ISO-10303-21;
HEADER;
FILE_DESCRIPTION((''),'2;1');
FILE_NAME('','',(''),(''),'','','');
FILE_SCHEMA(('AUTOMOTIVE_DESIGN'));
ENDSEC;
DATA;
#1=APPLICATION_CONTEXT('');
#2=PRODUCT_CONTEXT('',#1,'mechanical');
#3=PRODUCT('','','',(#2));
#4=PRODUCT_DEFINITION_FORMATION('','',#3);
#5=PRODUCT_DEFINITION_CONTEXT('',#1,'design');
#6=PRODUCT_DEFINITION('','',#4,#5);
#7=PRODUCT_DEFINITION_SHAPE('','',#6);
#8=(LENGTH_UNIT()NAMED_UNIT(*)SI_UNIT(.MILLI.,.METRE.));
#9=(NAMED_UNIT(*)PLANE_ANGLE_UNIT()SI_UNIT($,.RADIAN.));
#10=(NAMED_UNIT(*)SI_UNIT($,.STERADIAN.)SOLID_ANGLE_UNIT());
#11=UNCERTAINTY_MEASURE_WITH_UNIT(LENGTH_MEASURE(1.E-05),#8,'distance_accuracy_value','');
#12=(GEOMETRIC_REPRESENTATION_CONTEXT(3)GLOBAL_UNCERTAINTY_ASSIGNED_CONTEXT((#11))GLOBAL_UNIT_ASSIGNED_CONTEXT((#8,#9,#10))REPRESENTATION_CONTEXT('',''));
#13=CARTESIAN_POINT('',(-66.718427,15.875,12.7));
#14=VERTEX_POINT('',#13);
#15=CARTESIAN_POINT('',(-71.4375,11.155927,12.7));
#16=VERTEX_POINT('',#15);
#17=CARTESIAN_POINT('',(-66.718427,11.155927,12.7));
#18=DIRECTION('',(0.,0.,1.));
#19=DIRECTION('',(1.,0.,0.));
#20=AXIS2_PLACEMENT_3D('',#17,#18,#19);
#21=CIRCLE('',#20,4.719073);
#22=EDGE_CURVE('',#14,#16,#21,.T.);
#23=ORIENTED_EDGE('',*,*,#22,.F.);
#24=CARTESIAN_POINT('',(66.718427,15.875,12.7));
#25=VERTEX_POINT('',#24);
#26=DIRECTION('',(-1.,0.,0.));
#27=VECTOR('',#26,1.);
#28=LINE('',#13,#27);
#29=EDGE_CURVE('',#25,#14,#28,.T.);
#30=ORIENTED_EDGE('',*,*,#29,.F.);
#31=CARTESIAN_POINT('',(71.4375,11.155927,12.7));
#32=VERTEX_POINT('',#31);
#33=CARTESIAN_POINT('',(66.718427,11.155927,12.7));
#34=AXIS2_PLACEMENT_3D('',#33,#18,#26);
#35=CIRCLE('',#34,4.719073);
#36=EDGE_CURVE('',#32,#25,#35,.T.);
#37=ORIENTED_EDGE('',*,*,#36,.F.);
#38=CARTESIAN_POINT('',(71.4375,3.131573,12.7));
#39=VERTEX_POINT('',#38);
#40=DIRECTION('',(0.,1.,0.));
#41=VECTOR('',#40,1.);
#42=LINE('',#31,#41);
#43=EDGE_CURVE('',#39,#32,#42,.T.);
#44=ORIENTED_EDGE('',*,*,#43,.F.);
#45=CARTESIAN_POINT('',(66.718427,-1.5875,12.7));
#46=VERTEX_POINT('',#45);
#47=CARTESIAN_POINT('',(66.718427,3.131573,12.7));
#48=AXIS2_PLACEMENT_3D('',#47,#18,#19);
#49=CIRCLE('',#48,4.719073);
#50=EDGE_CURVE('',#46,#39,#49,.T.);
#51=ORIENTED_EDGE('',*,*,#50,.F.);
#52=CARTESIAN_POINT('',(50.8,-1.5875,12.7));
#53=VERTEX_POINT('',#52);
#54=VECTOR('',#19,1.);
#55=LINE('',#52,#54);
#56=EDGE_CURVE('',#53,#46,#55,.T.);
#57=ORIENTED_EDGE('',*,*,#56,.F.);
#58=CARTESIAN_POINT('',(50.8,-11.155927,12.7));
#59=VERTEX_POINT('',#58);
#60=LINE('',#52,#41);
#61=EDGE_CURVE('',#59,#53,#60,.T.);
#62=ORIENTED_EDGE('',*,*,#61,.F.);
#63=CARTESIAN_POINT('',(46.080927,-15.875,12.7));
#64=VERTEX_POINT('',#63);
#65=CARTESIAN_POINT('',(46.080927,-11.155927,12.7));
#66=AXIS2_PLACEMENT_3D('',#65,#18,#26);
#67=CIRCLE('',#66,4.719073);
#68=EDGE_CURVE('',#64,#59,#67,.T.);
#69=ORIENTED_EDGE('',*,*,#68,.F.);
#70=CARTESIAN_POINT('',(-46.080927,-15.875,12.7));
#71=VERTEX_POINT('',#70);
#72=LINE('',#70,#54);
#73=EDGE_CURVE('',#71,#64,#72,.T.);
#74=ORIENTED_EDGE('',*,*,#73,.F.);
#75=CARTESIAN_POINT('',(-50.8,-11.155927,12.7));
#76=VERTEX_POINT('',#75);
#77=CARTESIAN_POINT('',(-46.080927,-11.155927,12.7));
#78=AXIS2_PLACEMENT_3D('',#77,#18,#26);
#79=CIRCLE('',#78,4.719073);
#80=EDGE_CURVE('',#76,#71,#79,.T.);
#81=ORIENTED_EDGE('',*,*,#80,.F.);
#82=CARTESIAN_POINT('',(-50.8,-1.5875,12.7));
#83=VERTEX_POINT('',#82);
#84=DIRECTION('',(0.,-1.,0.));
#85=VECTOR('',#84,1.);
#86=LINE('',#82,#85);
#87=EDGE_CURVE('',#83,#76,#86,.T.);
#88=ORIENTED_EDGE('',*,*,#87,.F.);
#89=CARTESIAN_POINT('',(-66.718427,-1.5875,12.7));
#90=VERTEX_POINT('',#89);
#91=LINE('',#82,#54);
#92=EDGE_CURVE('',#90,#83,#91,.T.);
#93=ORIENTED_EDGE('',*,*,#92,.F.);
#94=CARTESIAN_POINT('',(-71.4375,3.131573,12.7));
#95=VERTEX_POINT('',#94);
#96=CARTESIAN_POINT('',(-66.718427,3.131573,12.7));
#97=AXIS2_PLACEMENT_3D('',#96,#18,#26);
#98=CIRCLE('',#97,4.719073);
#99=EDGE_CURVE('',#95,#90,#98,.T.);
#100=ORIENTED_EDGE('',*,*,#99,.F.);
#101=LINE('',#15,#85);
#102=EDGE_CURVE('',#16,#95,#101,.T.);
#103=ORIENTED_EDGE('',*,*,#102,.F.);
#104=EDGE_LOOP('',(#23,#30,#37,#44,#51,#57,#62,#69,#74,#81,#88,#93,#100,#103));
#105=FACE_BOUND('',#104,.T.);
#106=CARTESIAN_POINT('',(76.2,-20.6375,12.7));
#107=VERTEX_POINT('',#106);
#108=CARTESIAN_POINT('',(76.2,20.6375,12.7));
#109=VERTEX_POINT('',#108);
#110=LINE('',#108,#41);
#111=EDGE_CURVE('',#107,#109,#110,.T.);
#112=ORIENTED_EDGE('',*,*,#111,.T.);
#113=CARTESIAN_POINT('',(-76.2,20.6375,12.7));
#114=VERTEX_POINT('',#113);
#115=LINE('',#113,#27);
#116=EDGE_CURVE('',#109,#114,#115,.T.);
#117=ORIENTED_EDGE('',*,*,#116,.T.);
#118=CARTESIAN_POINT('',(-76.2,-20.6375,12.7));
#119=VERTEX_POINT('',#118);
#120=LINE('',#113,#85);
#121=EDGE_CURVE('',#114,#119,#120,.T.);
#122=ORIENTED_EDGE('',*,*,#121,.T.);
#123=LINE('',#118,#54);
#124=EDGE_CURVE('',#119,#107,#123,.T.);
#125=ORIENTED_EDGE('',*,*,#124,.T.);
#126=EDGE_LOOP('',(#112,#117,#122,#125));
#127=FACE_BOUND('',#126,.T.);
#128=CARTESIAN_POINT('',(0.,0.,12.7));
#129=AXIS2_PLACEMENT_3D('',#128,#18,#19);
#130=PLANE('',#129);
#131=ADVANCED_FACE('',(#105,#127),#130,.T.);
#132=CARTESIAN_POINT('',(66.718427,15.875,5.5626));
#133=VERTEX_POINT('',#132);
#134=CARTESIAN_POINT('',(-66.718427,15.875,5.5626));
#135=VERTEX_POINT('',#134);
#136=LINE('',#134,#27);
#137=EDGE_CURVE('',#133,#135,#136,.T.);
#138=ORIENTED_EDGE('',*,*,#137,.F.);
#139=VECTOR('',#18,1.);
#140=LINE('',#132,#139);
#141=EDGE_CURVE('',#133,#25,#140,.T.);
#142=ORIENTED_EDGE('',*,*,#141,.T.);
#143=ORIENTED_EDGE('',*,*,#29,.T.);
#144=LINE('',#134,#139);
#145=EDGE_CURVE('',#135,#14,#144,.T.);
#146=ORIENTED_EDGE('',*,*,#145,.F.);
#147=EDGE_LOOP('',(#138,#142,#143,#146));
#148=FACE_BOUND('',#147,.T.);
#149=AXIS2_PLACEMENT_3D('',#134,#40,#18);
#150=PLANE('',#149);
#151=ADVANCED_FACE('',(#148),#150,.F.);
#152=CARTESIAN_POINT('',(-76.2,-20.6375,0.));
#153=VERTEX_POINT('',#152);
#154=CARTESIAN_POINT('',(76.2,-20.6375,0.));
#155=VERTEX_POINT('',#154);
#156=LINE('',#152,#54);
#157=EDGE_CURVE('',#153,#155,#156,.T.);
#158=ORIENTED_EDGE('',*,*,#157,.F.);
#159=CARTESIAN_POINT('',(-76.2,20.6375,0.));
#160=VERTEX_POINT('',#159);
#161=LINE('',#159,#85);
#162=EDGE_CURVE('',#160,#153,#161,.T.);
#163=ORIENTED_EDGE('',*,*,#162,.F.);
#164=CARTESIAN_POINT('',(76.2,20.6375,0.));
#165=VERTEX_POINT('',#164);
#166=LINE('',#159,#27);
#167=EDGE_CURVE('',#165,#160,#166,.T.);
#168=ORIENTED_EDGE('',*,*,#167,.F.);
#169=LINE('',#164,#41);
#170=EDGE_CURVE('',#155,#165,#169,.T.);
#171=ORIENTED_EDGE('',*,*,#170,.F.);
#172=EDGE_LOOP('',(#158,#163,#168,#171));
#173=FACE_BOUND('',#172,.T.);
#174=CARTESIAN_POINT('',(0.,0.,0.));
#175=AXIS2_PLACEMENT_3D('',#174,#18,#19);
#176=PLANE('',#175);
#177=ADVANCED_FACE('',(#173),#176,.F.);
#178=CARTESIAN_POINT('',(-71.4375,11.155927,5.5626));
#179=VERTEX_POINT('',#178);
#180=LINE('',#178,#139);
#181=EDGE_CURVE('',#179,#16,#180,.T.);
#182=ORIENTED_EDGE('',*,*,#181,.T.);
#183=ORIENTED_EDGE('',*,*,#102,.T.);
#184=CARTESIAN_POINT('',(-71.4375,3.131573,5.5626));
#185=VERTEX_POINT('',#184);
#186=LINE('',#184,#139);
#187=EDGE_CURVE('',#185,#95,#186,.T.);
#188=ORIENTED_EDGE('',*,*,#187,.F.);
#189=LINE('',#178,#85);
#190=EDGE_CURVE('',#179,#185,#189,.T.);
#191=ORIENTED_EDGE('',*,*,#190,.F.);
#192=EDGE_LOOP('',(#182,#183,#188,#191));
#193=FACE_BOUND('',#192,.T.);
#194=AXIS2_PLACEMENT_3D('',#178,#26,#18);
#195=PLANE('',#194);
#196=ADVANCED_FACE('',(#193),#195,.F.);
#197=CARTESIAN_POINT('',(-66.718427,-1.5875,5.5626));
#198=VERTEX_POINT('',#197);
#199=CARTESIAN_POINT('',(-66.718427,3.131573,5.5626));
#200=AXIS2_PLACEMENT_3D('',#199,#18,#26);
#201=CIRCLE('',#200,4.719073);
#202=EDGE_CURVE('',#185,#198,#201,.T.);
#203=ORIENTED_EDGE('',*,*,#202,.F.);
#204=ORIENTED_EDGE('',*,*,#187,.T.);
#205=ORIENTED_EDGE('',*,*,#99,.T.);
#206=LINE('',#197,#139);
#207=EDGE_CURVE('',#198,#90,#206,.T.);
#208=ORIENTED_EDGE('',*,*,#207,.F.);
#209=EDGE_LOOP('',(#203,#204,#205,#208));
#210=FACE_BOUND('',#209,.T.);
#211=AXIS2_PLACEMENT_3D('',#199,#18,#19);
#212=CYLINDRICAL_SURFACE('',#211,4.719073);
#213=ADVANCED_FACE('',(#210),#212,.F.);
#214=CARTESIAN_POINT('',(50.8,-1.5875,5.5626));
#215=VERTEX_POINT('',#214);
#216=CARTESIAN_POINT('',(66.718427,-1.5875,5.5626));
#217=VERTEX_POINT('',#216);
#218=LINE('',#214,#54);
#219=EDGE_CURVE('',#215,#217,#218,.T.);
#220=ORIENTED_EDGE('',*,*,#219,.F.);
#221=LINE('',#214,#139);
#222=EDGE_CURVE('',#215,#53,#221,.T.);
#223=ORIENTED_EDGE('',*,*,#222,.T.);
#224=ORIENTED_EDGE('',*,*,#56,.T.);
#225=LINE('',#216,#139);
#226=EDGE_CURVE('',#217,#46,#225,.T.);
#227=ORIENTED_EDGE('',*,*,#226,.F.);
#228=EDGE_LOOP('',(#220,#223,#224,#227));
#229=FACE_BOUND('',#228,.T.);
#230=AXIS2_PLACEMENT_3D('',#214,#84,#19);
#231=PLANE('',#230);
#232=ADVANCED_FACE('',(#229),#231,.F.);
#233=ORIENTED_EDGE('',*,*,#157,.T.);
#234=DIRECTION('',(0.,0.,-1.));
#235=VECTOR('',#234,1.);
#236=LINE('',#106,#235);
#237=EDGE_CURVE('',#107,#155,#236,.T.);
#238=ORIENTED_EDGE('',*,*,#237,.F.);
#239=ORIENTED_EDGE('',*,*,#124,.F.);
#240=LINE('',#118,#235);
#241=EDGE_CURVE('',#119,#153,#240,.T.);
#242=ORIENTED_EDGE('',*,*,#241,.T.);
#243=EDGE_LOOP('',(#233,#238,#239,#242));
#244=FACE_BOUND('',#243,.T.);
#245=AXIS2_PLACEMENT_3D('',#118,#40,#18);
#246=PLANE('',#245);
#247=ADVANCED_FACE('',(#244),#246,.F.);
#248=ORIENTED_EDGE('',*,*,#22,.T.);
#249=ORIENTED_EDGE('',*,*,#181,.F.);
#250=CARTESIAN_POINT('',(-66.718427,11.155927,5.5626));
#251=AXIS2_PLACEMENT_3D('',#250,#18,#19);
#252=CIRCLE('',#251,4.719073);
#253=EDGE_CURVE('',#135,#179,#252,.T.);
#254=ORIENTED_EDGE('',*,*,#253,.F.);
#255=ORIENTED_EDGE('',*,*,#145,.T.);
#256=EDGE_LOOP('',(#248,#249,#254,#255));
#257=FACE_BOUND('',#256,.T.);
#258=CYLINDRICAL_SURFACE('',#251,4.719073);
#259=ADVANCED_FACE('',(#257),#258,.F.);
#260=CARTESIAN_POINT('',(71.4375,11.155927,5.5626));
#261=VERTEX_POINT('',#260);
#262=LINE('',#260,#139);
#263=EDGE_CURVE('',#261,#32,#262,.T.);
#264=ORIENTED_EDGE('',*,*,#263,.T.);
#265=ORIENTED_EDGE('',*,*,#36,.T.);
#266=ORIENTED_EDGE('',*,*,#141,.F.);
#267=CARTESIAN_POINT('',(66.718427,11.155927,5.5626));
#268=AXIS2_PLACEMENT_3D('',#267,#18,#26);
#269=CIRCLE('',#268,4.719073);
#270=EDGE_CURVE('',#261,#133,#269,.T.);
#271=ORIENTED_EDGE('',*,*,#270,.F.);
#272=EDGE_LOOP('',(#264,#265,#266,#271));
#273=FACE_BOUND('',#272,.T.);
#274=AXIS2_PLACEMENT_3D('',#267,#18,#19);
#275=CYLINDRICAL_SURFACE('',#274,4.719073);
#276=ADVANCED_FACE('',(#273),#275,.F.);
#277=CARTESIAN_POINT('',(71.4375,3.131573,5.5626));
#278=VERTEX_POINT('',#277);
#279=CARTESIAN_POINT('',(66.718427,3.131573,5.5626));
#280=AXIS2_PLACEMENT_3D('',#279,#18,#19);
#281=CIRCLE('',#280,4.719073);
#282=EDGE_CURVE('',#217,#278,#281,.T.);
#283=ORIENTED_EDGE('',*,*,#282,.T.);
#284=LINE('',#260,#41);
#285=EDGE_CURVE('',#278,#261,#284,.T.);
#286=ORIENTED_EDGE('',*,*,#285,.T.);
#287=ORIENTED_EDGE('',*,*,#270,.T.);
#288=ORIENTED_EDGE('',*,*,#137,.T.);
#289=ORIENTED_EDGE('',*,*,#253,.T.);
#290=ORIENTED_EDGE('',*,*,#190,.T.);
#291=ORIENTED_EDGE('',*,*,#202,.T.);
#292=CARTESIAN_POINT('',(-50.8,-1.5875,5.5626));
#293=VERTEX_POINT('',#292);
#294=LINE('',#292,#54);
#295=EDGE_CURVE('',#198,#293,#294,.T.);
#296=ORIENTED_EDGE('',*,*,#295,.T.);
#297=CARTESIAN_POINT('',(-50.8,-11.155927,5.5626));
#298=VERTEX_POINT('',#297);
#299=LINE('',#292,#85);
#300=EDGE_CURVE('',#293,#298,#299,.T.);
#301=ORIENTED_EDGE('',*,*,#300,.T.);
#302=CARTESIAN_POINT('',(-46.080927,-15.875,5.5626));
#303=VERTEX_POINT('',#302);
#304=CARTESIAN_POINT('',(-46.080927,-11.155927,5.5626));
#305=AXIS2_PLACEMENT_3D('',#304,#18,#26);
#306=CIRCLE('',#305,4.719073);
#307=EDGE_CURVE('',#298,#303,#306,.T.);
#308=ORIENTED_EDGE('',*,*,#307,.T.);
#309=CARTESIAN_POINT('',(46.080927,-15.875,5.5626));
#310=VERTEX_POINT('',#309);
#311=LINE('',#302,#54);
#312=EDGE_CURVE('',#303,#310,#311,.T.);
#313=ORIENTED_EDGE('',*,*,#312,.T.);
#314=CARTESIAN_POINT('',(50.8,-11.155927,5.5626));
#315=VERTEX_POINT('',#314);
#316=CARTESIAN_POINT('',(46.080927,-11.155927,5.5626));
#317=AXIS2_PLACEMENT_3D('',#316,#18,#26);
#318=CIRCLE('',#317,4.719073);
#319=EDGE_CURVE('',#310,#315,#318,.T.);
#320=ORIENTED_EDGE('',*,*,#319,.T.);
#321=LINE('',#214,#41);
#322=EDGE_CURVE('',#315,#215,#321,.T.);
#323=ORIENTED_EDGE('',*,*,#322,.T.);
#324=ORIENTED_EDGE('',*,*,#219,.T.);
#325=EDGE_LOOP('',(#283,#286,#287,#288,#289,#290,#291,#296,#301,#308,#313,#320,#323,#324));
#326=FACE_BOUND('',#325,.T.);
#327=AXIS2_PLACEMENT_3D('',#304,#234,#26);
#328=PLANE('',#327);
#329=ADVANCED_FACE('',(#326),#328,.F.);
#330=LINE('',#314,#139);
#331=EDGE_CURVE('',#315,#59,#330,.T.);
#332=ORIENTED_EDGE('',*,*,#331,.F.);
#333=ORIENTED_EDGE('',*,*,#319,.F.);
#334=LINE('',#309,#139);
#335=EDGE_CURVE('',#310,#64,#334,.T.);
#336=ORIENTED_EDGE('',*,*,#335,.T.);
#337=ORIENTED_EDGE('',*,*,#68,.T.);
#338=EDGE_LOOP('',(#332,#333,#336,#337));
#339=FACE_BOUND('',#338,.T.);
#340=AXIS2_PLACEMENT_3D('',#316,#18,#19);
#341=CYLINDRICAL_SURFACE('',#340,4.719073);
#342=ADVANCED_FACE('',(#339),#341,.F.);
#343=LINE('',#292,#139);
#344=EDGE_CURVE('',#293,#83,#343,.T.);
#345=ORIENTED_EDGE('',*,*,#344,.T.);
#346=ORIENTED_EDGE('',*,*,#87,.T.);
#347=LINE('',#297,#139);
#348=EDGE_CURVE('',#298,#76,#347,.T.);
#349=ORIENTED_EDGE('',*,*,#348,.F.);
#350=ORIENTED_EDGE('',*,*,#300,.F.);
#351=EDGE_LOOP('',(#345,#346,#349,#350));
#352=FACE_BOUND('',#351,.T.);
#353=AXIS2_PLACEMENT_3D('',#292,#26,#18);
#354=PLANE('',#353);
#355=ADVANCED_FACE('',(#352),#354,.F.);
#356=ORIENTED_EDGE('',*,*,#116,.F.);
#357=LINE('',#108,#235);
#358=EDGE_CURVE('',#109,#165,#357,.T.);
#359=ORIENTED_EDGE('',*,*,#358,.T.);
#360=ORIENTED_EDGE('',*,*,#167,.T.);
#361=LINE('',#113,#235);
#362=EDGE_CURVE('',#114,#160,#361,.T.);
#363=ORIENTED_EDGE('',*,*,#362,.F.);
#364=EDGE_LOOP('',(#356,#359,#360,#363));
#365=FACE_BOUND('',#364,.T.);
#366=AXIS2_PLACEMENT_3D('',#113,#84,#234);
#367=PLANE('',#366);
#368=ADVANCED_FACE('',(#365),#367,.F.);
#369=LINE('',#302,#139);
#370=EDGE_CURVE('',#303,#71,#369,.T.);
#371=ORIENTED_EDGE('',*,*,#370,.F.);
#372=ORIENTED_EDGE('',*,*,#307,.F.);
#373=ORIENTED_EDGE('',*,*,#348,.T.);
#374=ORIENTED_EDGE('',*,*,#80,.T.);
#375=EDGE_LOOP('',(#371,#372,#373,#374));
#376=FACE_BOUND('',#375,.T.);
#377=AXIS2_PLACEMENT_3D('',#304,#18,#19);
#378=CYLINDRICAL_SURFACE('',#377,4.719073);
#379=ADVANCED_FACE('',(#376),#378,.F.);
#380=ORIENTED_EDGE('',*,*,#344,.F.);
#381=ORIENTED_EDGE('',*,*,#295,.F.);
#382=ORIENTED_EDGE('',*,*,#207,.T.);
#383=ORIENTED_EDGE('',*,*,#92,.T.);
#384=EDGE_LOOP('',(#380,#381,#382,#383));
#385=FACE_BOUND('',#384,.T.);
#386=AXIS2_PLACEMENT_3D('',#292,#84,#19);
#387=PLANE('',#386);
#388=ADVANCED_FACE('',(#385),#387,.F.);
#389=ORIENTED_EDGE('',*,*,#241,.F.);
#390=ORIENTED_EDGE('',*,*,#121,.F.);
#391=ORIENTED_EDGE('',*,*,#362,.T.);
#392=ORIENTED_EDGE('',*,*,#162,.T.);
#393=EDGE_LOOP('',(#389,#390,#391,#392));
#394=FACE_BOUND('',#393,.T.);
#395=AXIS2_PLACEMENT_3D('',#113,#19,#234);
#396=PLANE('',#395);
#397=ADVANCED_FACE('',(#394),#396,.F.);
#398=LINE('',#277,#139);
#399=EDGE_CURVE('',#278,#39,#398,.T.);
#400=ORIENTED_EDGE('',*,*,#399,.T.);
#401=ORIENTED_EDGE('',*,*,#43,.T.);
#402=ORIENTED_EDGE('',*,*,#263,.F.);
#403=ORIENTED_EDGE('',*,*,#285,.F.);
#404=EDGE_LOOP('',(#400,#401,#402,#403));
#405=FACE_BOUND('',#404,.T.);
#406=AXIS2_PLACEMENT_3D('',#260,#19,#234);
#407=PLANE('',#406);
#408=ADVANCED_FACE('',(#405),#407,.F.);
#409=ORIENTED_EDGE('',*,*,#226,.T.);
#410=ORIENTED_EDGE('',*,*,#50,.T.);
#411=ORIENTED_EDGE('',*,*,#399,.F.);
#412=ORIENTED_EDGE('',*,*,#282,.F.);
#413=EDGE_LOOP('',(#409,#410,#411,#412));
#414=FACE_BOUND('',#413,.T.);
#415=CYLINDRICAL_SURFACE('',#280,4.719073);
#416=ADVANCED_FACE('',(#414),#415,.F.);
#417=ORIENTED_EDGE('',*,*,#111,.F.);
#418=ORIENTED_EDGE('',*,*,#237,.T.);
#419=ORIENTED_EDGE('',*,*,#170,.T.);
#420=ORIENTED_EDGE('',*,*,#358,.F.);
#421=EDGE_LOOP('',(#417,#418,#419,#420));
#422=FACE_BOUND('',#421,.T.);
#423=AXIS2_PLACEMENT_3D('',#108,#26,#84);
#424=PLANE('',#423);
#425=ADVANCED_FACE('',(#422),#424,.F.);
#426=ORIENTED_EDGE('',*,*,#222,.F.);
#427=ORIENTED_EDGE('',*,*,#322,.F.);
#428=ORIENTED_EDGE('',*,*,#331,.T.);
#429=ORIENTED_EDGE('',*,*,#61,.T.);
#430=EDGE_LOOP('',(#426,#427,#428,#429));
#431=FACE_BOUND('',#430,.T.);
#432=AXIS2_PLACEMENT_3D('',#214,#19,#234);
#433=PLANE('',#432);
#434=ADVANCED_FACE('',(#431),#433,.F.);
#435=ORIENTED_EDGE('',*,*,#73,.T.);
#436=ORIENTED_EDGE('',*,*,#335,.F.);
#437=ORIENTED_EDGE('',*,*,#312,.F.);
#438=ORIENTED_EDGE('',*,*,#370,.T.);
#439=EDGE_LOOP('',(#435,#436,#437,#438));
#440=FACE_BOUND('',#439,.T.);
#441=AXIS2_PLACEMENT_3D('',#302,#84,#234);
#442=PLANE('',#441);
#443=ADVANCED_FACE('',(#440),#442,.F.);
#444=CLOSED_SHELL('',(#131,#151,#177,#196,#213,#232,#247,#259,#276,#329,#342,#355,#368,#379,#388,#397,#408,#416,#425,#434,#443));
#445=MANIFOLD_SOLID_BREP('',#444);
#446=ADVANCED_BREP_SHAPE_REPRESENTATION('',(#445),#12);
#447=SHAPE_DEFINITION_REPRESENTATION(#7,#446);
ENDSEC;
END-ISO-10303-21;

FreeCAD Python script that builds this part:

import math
import FreeCAD as App
import Part
import Sketcher

V = App.Vector
Q = App.Units.Quantity


def add_polygon(sketch, points):
    """Adds a closed chain of lines whose ends are joined by coincident constraints."""
    first, n = sketch.GeometryCount, len(points)
    for a, b in zip(points, points[1:] + points[:1]):
        sketch.addGeometry(Part.LineSegment(App.Vector(*a, 0), App.Vector(*b, 0)), False)
    for i in range(n):
        sketch.addConstraint(Sketcher.Constraint("Coincident", first + i, 2, first + (i + 1) % n, 1))

doc = App.newDocument("Part")
body = doc.addObject("PartDesign::Body", "Body")

sketch1 = body.newObject("Sketcher::SketchObject", "Sketch")
sketch1.AttachmentSupport = (doc.getObject("XY_Plane"), [""])
sketch1.MapMode = "FlatFace"
add_polygon(sketch1, [(-76.2, 20.6375), (-76.2, -20.6375), (76.2, -20.6375), (76.2, 20.6375)])
sketch1.addConstraint(Sketcher.Constraint("Vertical", 0))
sketch1.addConstraint(Sketcher.Constraint("Horizontal", 1))
sketch1.addConstraint(Sketcher.Constraint("Vertical", 2))
sketch1.addConstraint(Sketcher.Constraint("Horizontal", 3))
sketch1.addConstraint(Sketcher.Constraint("Symmetric", 0, 2, 2, 2, -1, 1))
sketch1.addConstraint(Sketcher.Constraint("DistanceX", 1, 1, 1, 2, Q("6 in")))
sketch1.addConstraint(Sketcher.Constraint("DistanceY", 0, 2, 0, 1, Q("1.625 in")))
pad1 = body.newObject("PartDesign::Pad", "Pad")
pad1.Profile = sketch1
pad1.Length = Q("0.5 in")

sketch2 = body.newObject("Sketcher::SketchObject", "Sketch001")
sketch2.AttachmentSupport = (doc.getObject("XY_Plane"), [""])
sketch2.MapMode = "FlatFace"
sketch2.AttachmentOffset = App.Placement(V(0, 0, 0.5 * 25.4), App.Rotation())
sketch2.addGeometry(Part.LineSegment(V(66.718427, 15.875, 0), V(-66.718427, 15.875, 0)), False)
sketch2.addGeometry(Part.ArcOfCircle(Part.Circle(V(-66.718427, 11.155927, 0), V(0, 0, 1), 4.719073), math.radians(90), math.radians(180)), False)
sketch2.addGeometry(Part.LineSegment(V(-71.4375, 11.155927, 0), V(-71.4375, 3.131573, 0)), False)
sketch2.addGeometry(Part.ArcOfCircle(Part.Circle(V(-66.718427, 3.131573, 0), V(0, 0, 1), 4.719073), math.radians(-180), math.radians(-90)), False)
sketch2.addGeometry(Part.LineSegment(V(-66.718427, -1.5875, 0), V(-50.8, -1.5875, 0)), False)
sketch2.addGeometry(Part.LineSegment(V(-50.8, -1.5875, 0), V(-50.8, -11.155927, 0)), False)
sketch2.addGeometry(Part.ArcOfCircle(Part.Circle(V(-46.080927, -11.155927, 0), V(0, 0, 1), 4.719073), math.radians(-180), math.radians(-90)), False)
sketch2.addGeometry(Part.LineSegment(V(-46.080927, -15.875, 0), V(46.080927, -15.875, 0)), False)
sketch2.addGeometry(Part.ArcOfCircle(Part.Circle(V(46.080927, -11.155927, 0), V(0, 0, 1), 4.719073), math.radians(-90), math.radians(0)), False)
sketch2.addGeometry(Part.LineSegment(V(50.8, -11.155927, 0), V(50.8, -1.5875, 0)), False)
sketch2.addGeometry(Part.LineSegment(V(50.8, -1.5875, 0), V(66.718427, -1.5875, 0)), False)
sketch2.addGeometry(Part.ArcOfCircle(Part.Circle(V(66.718427, 3.131573, 0), V(0, 0, 1), 4.719073), math.radians(-90), math.radians(0)), False)
sketch2.addGeometry(Part.LineSegment(V(71.4375, 3.131573, 0), V(71.4375, 11.155927, 0)), False)
sketch2.addGeometry(Part.ArcOfCircle(Part.Circle(V(66.718427, 11.155927, 0), V(0, 0, 1), 4.719073), math.radians(0), math.radians(90)), False)
sketch2.addConstraint(Sketcher.Constraint("Tangent", 0, 2, 1, 1))
sketch2.addConstraint(Sketcher.Constraint("Tangent", 1, 2, 2, 1))
sketch2.addConstraint(Sketcher.Constraint("Tangent", 2, 2, 3, 1))
sketch2.addConstraint(Sketcher.Constraint("Tangent", 3, 2, 4, 1))
sketch2.addConstraint(Sketcher.Constraint("Coincident", 4, 2, 5, 1))
sketch2.addConstraint(Sketcher.Constraint("Tangent", 5, 2, 6, 1))
sketch2.addConstraint(Sketcher.Constraint("Tangent", 6, 2, 7, 1))
sketch2.addConstraint(Sketcher.Constraint("Tangent", 7, 2, 8, 1))
sketch2.addConstraint(Sketcher.Constraint("Tangent", 8, 2, 9, 1))
sketch2.addConstraint(Sketcher.Constraint("Coincident", 9, 2, 10, 1))
sketch2.addConstraint(Sketcher.Constraint("Tangent", 10, 2, 11, 1))
sketch2.addConstraint(Sketcher.Constraint("Tangent", 11, 2, 12, 1))
sketch2.addConstraint(Sketcher.Constraint("Tangent", 12, 2, 13, 1))
sketch2.addConstraint(Sketcher.Constraint("Tangent", 13, 2, 0, 1))
sketch2.addConstraint(Sketcher.Constraint("Horizontal", 0))
sketch2.addConstraint(Sketcher.Constraint("Vertical", 2))
sketch2.addConstraint(Sketcher.Constraint("Horizontal", 4))
sketch2.addConstraint(Sketcher.Constraint("Vertical", 5))
sketch2.addConstraint(Sketcher.Constraint("Horizontal", 7))
sketch2.addConstraint(Sketcher.Constraint("Vertical", 9))
sketch2.addConstraint(Sketcher.Constraint("Horizontal", 10))
sketch2.addConstraint(Sketcher.Constraint("Vertical", 12))
sketch2.addConstraint(Sketcher.Constraint("Equal", 1, 3))
sketch2.addConstraint(Sketcher.Constraint("Equal", 3, 6))
sketch2.addConstraint(Sketcher.Constraint("Equal", 6, 8))
sketch2.addConstraint(Sketcher.Constraint("Equal", 8, 11))
sketch2.addConstraint(Sketcher.Constraint("Equal", 11, 13))
sketch2.addConstraint(Sketcher.Constraint("Symmetric", 3, 3, 11, 3, -2))
sketch2.addConstraint(Sketcher.Constraint("Equal", 4, 10))
sketch2.addConstraint(Sketcher.Constraint("DistanceX", 4, 2, -1, 1, Q("2 in")))
sketch2.addConstraint(Sketcher.Constraint("DistanceY", -1, 1, 0, 2, Q("0.625 in")))
sketch2.addConstraint(Sketcher.Constraint("DistanceX", 1, 2, -1, 1, Q("2.8125 in")))
sketch2.addConstraint(Sketcher.Constraint("DistanceY", 3, 2, -1, 1, Q("0.0625 in")))
sketch2.addConstraint(Sketcher.Constraint("DistanceY", 6, 2, -1, 1, Q("0.625 in")))
sketch2.addConstraint(Sketcher.Constraint("Radius", 1, Q("4.719073 mm")))
pocket1 = body.newObject("PartDesign::Pocket", "Pocket")
pocket1.Profile = sketch2
pocket1.Length = Q("0.281 in")

doc.recompute()
